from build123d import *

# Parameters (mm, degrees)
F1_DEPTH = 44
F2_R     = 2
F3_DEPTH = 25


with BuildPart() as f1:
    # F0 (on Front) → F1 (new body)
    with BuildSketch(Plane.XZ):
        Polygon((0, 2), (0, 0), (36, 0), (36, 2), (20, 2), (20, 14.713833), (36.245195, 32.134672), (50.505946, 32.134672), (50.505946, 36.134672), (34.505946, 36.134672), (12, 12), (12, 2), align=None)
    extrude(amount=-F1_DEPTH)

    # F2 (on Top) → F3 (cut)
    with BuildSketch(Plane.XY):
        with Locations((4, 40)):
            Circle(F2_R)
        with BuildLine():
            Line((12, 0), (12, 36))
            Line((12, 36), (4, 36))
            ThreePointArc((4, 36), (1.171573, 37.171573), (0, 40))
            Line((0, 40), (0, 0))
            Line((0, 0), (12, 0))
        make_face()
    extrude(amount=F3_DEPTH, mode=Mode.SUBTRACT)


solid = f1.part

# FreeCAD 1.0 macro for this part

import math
import FreeCAD as App
import Part
import Sketcher
Q = App.Units.Quantity

doc = App.newDocument("Part")
body = doc.addObject("PartDesign::Body", "Body")

# Sketch on XZ plane
sketch1 = body.newObject("Sketcher::SketchObject", "Sketch")
sketch1.AttachmentSupport = (doc.getObject("XZ_Plane"), [""])
sketch1.MapMode = "FlatFace"
sketch1.addGeometry([
    Part.LineSegment(App.Vector(0, 2, 0), App.Vector(0, 0, 0)),  # 0
    Part.LineSegment(App.Vector(0, 0, 0), App.Vector(36, 0, 0)),  # 1
    Part.LineSegment(App.Vector(36, 0, 0), App.Vector(36, 2, 0)),  # 2
    Part.LineSegment(App.Vector(36, 2, 0), App.Vector(20, 2, 0)),  # 3
    Part.LineSegment(App.Vector(20, 2, 0), App.Vector(20, 14.7, 0)),  # 4
    Part.LineSegment(App.Vector(20, 14.7, 0), App.Vector(36.2, 32.1, 0)),  # 5
    Part.LineSegment(App.Vector(36.2, 32.1, 0), App.Vector(50.5, 32.1, 0)),  # 6
    Part.LineSegment(App.Vector(50.5, 32.1, 0), App.Vector(50.5, 36.1, 0)),  # 7
    Part.LineSegment(App.Vector(50.5, 36.1, 0), App.Vector(34.5, 36.1, 0)),  # 8
    Part.LineSegment(App.Vector(34.5, 36.1, 0), App.Vector(12, 12, 0)),  # 9
    Part.LineSegment(App.Vector(12, 12, 0), App.Vector(12, 2, 0)),  # 10
    Part.LineSegment(App.Vector(12, 2, 0), App.Vector(0, 2, 0)),  # 11
], False)
sketch1.addConstraint([
    Sketcher.Constraint("Coincident", 0, 2, 1, 1),
    Sketcher.Constraint("Coincident", 1, 2, 2, 1),
    Sketcher.Constraint("Coincident", 2, 2, 3, 1),
    Sketcher.Constraint("Coincident", 3, 2, 4, 1),
    Sketcher.Constraint("Coincident", 4, 2, 5, 1),
    Sketcher.Constraint("Coincident", 5, 2, 6, 1),
    Sketcher.Constraint("Coincident", 6, 2, 7, 1),
    Sketcher.Constraint("Coincident", 7, 2, 8, 1),
    Sketcher.Constraint("Coincident", 8, 2, 9, 1),
    Sketcher.Constraint("Coincident", 9, 2, 10, 1),
    Sketcher.Constraint("Coincident", 10, 2, 11, 1),
    Sketcher.Constraint("Coincident", 11, 2, 0, 1),
    Sketcher.Constraint("Vertical", 0),
    Sketcher.Constraint("Horizontal", 1),
    Sketcher.Constraint("Vertical", 2),
    Sketcher.Constraint("Horizontal", 3),
    Sketcher.Constraint("Vertical", 4),
    Sketcher.Constraint("Horizontal", 6),
    Sketcher.Constraint("Vertical", 7),
    Sketcher.Constraint("Horizontal", 8),
    Sketcher.Constraint("Vertical", 10),
    Sketcher.Constraint("Horizontal", 11),
    Sketcher.Constraint("Coincident", 0, 2, -1, 1),
    Sketcher.Constraint("Parallel", 5, 9),
    Sketcher.Constraint("Horizontal", 3, 2, 10, 2),
    Sketcher.Constraint("Equal", 3, 8),
    Sketcher.Constraint("DistanceX", 1, 1, 1, 2, 36.0),
    Sketcher.Constraint("DistanceX", 3, 2, 3, 1, 16.0),
    Sketcher.Constraint("DistanceX", 11, 2, 11, 1, 12.0),
    Sketcher.Constraint("DistanceY", 0, 2, 0, 1, 2.0),
    Sketcher.Constraint("DistanceY", 7, 1, 7, 2, 4.0),
    Sketcher.Constraint("DistanceY", 10, 2, 10, 1, 10.0),
    Sketcher.Constraint("Angle", 5, Q("47 deg")),
    Sketcher.Constraint("Distance", 9, 33.0),
    Sketcher.Constraint("DistanceX", 6, 1, 6, 2, 14.260751),
])
pad1 = body.newObject("PartDesign::Pad", "Pad")
pad1.Profile = sketch1
pad1.Length = 44
pad1.Reversed = True

# Sketch on XY plane
sketch2 = body.newObject("Sketcher::SketchObject", "Sketch001")
sketch2.AttachmentSupport = (doc.getObject("XY_Plane"), [""])
sketch2.MapMode = "FlatFace"
sketch2.addGeometry([
    Part.Circle(App.Vector(4, 40, 0), App.Vector(0, 0, 1), 2),  # 0
    Part.LineSegment(App.Vector(12, 0, 0), App.Vector(12, 36, 0)),  # 1
    Part.LineSegment(App.Vector(12, 36, 0), App.Vector(4, 36, 0)),  # 2
    Part.ArcOfCircle(Part.Circle(App.Vector(4, 40, 0), App.Vector(0, 0, 1), 4), math.radians(-180), math.radians(-90)),  # 3
    Part.LineSegment(App.Vector(0, 40, 0), App.Vector(0, 0, 0)),  # 4
    Part.LineSegment(App.Vector(0, 0, 0), App.Vector(12, 0, 0)),  # 5
], False)
sketch2.addConstraint([
    Sketcher.Constraint("Coincident", 1, 2, 2, 1),
    Sketcher.Constraint("Tangent", 2, 2, 3, 2),
    Sketcher.Constraint("Tangent", 3, 1, 4, 1),
    Sketcher.Constraint("Coincident", 4, 2, 5, 1),
    Sketcher.Constraint("Coincident", 5, 2, 1, 1),
    Sketcher.Constraint("Vertical", 1),
    Sketcher.Constraint("Horizontal", 2),
    Sketcher.Constraint("Vertical", 4),
    Sketcher.Constraint("Horizontal", 5),
    Sketcher.Constraint("Coincident", 4, 2, -1, 1),
    Sketcher.Constraint("Coincident", 3, 3, 0, 3),
    Sketcher.Constraint("Diameter", 0, 4.0),
    Sketcher.Constraint("Radius", 3, 4.0),
    Sketcher.Constraint("DistanceX", 2, 2, 2, 1, 8.0),
    Sketcher.Constraint("DistanceY", 1, 1, 1, 2, 36.0),
])
pocket1 = body.newObject("PartDesign::Pocket", "Pocket")
pocket1.Profile = sketch2
pocket1.Length = 25
pocket1.Reversed = True

doc.recompute()
